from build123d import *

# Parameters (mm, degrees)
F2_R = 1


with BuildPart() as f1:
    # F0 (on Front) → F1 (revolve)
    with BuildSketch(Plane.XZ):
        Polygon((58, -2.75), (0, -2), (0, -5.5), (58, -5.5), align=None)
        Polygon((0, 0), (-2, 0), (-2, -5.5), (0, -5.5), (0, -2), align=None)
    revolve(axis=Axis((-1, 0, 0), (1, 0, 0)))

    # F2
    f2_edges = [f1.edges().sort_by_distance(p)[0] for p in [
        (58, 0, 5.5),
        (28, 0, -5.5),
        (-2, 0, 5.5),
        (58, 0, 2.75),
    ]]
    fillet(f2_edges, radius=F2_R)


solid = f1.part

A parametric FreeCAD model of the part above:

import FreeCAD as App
import Part
import Sketcher
Q = App.Units.Quantity


def edges_at(feature, points):
    """Names of the edges that pass closest to the given points."""
    edges = feature.Shape.Edges
    near = lambda p: min(range(len(edges)), key=lambda i: edges[i].distToShape(Part.Vertex(*p))[0])
    return sorted({f"Edge{near(p) + 1}" for p in points})

doc = App.newDocument("Part")
params = doc.addObject("Spreadsheet::Sheet", "Params")
for row, (alias, value) in enumerate([
    ("sketch1_width", "2 mm"),
    ("sketch1_width2", "60 mm"),
    ("sketch1_height", "5.5 mm"),
    ("sketch1_height2", "2.75 mm"),
    ("revolution_angle", "360 deg"),
    ("fillet_radius", "1 mm"),
], start=1):
    params.set(f"A{row}", alias)
    params.set(f"B{row}", "=" + value)
    params.setAlias(f"B{row}", alias)

body = doc.addObject("PartDesign::Body", "Body")

# Sketch on XZ plane
sketch1 = body.newObject("Sketcher::SketchObject", "Sketch")
sketch1.AttachmentSupport = (doc.getObject("XZ_Plane"), [""])
sketch1.MapMode = "FlatFace"
sketch1.addGeometry([
    Part.LineSegment(App.Vector(58, -2.75, 0), App.Vector(0, -2, 0)),  # 0
    Part.LineSegment(App.Vector(0, -2, 0), App.Vector(0, 0, 0)),  # 1
    Part.LineSegment(App.Vector(0, 0, 0), App.Vector(-2, 0, 0)),  # 2
    Part.LineSegment(App.Vector(-2, 0, 0), App.Vector(-2, -5.5, 0)),  # 3
    Part.LineSegment(App.Vector(-2, -5.5, 0), App.Vector(58, -5.5, 0)),  # 4
    Part.LineSegment(App.Vector(58, -5.5, 0), App.Vector(58, -2.75, 0)),  # 5
], False)
sketch1.addConstraint([
    Sketcher.Constraint("Coincident", 0, 2, 1, 1),
    Sketcher.Constraint("Coincident", 1, 2, 2, 1),
    Sketcher.Constraint("Coincident", 2, 2, 3, 1),
    Sketcher.Constraint("Coincident", 3, 2, 4, 1),
    Sketcher.Constraint("Coincident", 4, 2, 5, 1),
    Sketcher.Constraint("Coincident", 5, 2, 0, 1),
    Sketcher.Constraint("Vertical", 1),
    Sketcher.Constraint("Horizontal", 2),
    Sketcher.Constraint("Vertical", 3),
    Sketcher.Constraint("Horizontal", 4),
    Sketcher.Constraint("Vertical", 5),
    Sketcher.Constraint("Coincident", 1, 2, -1, 1),
    Sketcher.Constraint("Equal", 2, 1),
    Sketcher.Constraint("DistanceX", 2, 2, 2, 1, Q("2 mm")),
    Sketcher.Constraint("DistanceX", 4, 1, 4, 2, Q("60 mm")),
    Sketcher.Constraint("DistanceY", 3, 2, 3, 1, Q("5.5 mm")),
    Sketcher.Constraint("DistanceY", 5, 1, 5, 2, Q("2.75 mm")),
])
sketch1.setExpression("Constraints[13]", "Params.sketch1_width")
sketch1.setExpression("Constraints[14]", "Params.sketch1_width2")
sketch1.setExpression("Constraints[15]", "Params.sketch1_height")
sketch1.setExpression("Constraints[16]", "Params.sketch1_height2")
revolution = body.newObject("PartDesign::Revolution", "Revolution")
revolution.Profile = sketch1
revolution.ReferenceAxis = (sketch1, ["H_Axis"])
revolution.setExpression("Angle", "Params.revolution_angle")
doc.recompute()

fillet = body.newObject("PartDesign::Fillet", "Fillet")
fillet.Base = (revolution, edges_at(revolution, [
    (58, 0, 5.5),
    (28, 0, -5.5),
    (-2, 0, 5.5),
    (58, 0, 2.75),
]))
fillet.setExpression("Radius", "Params.fillet_radius")

doc.recompute()
